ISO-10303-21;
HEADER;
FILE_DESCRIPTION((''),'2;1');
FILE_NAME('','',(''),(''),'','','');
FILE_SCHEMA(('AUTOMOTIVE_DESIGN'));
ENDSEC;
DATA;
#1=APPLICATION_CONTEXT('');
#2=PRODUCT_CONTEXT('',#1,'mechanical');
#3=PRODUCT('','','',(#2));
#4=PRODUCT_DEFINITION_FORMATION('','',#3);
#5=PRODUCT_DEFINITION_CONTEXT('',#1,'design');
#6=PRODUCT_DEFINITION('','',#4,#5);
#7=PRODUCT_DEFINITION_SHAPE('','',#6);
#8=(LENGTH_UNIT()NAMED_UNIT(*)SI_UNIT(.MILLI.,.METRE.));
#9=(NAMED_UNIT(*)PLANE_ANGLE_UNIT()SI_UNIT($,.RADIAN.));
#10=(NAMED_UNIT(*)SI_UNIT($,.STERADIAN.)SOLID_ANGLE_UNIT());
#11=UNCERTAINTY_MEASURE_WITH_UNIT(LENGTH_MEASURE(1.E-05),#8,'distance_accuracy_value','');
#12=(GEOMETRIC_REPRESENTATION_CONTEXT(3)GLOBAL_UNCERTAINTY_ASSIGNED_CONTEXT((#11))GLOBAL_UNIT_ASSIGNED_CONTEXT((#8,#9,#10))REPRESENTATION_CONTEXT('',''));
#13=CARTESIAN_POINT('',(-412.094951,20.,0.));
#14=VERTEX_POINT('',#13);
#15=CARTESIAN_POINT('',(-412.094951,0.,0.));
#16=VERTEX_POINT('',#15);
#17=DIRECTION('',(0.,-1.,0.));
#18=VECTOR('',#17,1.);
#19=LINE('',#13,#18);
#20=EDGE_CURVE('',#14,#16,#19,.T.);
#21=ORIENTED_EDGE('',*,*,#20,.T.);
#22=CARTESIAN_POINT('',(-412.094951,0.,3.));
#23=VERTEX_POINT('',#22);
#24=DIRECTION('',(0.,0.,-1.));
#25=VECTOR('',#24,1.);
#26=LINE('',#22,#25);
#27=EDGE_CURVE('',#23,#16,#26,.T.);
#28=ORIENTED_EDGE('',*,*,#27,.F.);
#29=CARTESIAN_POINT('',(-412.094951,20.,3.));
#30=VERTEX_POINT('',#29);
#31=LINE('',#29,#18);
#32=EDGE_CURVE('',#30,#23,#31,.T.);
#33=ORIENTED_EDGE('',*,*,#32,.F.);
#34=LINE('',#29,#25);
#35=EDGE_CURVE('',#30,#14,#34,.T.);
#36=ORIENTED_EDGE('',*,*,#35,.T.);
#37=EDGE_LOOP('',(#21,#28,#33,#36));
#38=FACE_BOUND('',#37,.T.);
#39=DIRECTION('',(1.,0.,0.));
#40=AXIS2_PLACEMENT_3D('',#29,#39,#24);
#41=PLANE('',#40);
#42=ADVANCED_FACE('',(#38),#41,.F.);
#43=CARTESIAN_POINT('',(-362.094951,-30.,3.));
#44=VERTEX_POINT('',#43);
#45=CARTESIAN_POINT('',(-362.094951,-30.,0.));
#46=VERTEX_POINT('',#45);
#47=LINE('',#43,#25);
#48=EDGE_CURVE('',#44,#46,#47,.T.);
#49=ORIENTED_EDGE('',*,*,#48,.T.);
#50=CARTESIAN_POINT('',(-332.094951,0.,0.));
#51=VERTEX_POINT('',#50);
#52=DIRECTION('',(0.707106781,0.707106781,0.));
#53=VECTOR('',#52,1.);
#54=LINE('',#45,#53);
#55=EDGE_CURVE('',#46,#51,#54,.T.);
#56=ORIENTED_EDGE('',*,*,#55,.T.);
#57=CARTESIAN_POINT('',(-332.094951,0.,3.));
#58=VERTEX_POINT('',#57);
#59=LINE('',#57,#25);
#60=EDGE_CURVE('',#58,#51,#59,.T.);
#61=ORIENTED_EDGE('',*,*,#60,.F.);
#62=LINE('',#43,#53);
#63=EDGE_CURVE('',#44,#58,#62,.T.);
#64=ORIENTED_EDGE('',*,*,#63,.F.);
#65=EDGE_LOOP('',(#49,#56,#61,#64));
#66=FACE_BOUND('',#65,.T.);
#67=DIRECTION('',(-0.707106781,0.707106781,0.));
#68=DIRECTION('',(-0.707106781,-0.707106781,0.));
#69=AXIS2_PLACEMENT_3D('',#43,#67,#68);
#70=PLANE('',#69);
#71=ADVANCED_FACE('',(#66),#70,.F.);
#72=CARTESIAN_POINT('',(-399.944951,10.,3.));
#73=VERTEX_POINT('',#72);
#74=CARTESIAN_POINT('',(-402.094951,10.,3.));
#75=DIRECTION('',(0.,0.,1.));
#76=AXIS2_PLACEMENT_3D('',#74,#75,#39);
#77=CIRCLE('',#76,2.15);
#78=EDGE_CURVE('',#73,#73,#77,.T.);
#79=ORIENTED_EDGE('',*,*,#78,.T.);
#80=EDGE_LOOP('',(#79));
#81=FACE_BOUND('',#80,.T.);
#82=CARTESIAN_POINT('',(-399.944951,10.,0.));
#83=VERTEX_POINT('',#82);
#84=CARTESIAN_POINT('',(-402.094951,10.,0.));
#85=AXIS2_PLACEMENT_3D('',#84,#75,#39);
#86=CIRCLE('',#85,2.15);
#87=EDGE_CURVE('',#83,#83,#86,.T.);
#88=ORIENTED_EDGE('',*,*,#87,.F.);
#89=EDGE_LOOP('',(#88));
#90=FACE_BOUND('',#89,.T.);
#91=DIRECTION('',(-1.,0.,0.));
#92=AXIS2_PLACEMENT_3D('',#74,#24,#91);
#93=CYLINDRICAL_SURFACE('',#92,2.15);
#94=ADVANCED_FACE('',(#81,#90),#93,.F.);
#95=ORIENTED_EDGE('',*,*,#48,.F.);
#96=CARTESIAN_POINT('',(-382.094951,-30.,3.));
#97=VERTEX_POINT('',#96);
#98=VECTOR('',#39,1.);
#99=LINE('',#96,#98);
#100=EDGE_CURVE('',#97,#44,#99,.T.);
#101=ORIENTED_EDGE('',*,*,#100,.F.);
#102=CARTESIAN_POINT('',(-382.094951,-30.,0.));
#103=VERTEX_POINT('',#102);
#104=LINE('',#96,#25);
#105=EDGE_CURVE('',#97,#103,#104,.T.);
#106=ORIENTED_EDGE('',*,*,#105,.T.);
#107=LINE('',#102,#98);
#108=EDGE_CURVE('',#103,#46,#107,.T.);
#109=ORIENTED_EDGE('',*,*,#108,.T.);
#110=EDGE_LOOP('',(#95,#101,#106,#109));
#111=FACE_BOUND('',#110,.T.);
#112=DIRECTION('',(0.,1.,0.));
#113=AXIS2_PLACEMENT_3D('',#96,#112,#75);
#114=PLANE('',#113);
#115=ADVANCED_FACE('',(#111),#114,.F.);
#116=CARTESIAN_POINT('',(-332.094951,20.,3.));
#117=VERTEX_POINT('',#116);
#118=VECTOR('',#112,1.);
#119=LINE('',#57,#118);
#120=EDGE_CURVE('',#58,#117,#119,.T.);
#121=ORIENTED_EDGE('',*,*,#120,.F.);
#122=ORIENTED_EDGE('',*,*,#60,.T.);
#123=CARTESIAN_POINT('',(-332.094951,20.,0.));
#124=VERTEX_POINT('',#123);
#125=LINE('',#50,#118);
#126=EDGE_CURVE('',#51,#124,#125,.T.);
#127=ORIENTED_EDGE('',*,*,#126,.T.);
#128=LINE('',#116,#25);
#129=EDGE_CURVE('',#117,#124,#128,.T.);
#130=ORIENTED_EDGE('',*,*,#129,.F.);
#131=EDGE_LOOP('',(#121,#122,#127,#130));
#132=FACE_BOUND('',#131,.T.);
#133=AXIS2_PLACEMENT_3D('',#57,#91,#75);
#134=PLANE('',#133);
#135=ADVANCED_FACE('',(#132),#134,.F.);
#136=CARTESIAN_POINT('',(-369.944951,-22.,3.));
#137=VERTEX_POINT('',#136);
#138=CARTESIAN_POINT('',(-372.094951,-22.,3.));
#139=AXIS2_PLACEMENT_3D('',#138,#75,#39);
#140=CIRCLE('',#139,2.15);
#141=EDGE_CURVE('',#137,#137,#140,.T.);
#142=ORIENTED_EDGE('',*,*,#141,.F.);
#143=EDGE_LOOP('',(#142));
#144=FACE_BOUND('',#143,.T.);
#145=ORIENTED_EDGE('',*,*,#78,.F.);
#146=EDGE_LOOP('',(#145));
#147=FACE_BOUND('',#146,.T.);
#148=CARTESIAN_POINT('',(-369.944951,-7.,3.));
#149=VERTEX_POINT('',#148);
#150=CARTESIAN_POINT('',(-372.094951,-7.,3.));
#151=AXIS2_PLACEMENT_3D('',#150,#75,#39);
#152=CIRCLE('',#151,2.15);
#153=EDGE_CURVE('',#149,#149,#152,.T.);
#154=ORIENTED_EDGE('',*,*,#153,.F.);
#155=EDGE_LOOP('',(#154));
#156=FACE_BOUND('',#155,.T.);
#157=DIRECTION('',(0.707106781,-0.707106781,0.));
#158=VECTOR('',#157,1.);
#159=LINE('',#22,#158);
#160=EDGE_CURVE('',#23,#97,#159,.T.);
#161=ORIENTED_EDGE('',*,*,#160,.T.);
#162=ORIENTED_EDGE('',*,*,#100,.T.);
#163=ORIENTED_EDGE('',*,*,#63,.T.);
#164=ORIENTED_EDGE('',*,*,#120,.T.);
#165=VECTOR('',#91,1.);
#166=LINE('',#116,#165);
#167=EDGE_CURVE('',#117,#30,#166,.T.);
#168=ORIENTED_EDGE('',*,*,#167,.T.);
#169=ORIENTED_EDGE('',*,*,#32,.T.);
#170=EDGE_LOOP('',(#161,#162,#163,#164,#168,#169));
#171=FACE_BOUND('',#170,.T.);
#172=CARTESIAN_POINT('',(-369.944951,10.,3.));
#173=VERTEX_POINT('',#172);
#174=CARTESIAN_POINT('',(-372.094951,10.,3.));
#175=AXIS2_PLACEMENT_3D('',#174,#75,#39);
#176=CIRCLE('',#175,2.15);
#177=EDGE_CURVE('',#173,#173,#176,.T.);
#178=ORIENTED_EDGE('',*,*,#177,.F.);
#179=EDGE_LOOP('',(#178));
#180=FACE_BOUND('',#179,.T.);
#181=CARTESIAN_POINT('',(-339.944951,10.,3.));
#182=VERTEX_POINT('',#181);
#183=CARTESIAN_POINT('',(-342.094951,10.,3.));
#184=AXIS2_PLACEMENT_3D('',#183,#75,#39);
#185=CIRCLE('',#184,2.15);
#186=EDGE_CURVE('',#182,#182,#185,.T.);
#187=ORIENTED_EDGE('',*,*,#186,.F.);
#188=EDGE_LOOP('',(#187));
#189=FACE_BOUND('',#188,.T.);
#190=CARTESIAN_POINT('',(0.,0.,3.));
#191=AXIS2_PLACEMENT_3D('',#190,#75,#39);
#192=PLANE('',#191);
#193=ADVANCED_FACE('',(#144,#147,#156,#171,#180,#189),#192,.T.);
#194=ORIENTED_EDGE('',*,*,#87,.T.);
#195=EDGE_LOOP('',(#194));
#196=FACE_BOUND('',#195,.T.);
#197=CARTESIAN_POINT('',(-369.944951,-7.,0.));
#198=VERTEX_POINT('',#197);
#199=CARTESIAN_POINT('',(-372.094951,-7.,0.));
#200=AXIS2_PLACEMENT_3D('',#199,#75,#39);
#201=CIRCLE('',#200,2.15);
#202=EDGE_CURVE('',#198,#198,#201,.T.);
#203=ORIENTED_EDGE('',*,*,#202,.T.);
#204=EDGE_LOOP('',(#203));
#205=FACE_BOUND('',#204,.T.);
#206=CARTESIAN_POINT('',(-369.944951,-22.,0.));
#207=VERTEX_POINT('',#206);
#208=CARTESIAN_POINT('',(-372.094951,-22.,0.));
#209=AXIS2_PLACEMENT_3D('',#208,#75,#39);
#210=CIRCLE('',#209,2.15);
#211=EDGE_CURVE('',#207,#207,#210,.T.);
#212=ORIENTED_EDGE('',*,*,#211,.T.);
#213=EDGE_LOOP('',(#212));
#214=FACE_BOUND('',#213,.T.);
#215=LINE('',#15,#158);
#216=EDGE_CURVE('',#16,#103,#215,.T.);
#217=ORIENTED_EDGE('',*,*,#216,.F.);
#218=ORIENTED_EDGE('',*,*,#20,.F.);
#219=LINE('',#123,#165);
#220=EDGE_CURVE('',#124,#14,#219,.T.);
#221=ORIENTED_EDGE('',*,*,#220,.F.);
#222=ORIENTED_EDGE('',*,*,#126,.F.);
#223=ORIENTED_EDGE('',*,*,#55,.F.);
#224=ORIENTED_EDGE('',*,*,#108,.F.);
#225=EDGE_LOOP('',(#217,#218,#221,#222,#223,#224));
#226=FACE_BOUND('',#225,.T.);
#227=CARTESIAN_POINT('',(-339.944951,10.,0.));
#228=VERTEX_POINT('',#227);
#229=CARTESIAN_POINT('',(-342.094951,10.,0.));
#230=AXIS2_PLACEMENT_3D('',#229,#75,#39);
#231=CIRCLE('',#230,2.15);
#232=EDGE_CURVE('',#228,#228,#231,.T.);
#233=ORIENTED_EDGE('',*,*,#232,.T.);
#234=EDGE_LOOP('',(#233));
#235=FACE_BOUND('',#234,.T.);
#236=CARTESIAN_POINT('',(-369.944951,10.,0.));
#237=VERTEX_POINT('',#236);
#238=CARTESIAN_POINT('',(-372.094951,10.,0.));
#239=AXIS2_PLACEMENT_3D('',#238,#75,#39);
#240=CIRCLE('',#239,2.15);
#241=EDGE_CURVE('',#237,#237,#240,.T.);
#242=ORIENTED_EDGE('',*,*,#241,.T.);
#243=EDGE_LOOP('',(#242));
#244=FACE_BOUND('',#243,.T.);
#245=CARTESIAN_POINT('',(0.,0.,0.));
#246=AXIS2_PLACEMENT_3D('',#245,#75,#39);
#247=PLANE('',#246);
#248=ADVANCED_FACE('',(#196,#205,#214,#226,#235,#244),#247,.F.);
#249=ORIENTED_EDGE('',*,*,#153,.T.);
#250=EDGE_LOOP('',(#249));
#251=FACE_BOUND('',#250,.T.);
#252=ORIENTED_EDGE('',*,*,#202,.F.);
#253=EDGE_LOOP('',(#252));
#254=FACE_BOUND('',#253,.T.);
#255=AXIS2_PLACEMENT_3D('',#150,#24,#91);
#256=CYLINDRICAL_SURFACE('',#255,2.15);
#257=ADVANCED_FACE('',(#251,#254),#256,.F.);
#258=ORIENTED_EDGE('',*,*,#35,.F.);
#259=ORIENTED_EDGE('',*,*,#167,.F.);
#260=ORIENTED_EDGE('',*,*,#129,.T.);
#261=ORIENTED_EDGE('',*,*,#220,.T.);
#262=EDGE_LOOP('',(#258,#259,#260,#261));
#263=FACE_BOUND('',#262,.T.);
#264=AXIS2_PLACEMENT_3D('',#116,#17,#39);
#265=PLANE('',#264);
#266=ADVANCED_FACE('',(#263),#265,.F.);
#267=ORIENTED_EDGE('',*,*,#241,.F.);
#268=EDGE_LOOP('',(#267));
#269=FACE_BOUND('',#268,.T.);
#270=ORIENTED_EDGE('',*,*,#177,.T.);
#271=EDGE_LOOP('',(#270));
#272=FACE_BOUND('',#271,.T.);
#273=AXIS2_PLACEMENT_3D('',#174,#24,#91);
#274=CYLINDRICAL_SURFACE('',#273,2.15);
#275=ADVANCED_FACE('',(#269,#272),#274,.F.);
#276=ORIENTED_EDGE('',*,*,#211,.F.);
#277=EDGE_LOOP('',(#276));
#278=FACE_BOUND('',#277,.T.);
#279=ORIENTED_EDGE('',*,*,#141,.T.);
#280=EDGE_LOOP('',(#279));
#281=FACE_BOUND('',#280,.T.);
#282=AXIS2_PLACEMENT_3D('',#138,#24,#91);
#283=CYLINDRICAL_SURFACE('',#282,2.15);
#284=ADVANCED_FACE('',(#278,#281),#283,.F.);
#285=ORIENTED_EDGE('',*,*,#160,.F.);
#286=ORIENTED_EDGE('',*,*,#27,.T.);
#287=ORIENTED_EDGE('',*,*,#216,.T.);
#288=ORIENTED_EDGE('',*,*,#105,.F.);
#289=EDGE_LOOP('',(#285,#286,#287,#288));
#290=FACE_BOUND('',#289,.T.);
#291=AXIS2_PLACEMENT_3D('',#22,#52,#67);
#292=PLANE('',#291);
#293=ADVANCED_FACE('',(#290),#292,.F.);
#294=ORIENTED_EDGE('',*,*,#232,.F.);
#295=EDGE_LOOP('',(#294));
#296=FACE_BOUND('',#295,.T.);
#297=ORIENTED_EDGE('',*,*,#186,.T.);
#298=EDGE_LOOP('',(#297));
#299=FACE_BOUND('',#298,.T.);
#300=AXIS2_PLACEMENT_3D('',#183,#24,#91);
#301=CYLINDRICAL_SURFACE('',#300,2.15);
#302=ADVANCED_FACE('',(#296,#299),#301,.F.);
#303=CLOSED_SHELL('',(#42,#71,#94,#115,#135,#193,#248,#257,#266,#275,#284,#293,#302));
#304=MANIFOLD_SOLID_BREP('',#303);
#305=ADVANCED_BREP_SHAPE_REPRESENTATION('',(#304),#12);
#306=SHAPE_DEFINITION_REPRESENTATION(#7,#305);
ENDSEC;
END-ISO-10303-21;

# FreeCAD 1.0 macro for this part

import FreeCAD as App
import Part
import Sketcher

V = App.Vector


def add_polygon(sketch, points):
    """Adds a closed chain of lines whose ends are joined by coincident constraints."""
    first, n = sketch.GeometryCount, len(points)
    for a, b in zip(points, points[1:] + points[:1]):
        sketch.addGeometry(Part.LineSegment(App.Vector(*a, 0), App.Vector(*b, 0)), False)
    for i in range(n):
        sketch.addConstraint(Sketcher.Constraint("Coincident", first + i, 2, first + (i + 1) % n, 1))

doc = App.newDocument("Part")
body = doc.addObject("PartDesign::Body", "Body")

sketch1 = body.newObject("Sketcher::SketchObject", "Sketch")
sketch1.AttachmentSupport = (doc.getObject("XY_Plane"), [""])
sketch1.MapMode = "FlatFace"
add_polygon(sketch1, [(-412.1, 20), (-412.1, 0), (-382.1, -30), (-362.1, -30), (-332.1, 0), (-332.1, 20)])
sketch1.addGeometry(Part.Circle(V(-372.1, -22, 0), V(0, 0, 1), 2.1), False)
sketch1.addGeometry(Part.Circle(V(-372.1, -7, 0), V(0, 0, 1), 2.1), False)
sketch1.addGeometry(Part.Circle(V(-402.1, 10, 0), V(0, 0, 1), 2.1), False)
sketch1.addGeometry(Part.Circle(V(-372.1, 10, 0), V(0, 0, 1), 2.1), False)
sketch1.addGeometry(Part.Circle(V(-342.1, 10, 0), V(0, 0, 1), 2.1), False)
sketch1.addConstraint(Sketcher.Constraint("Vertical", 0))
sketch1.addConstraint(Sketcher.Constraint("Horizontal", 2))
sketch1.addConstraint(Sketcher.Constraint("Vertical", 4))
sketch1.addConstraint(Sketcher.Constraint("Horizontal", 5))
sketch1.addConstraint(Sketcher.Constraint("Equal", 6, 7))
sketch1.addConstraint(Sketcher.Constraint("Equal", 7, 8))
sketch1.addConstraint(Sketcher.Constraint("Equal", 8, 9))
sketch1.addConstraint(Sketcher.Constraint("Equal", 9, 10))
sketch1.addConstraint(Sketcher.Constraint("PointOnObject", 0, 2, -1))
sketch1.addConstraint(Sketcher.Constraint("PointOnObject", 3, 2, -1))
sketch1.addConstraint(Sketcher.Constraint("Perpendicular", 1, 3))
sketch1.addConstraint(Sketcher.Constraint("Horizontal", 8, 3, 9, 3))
sketch1.addConstraint(Sketcher.Constraint("Horizontal", 9, 3, 10, 3))
sketch1.addConstraint(Sketcher.Constraint("Vertical", 6, 3, 7, 3))
sketch1.addConstraint(Sketcher.Constraint("Vertical", 7, 3, 9, 3))
sketch1.addConstraint(Sketcher.Constraint("Equal", 2, 0))
sketch1.addConstraint(Sketcher.Constraint("Equal", 1, 3))
sketch1.addConstraint(Sketcher.Constraint("Diameter", 6, 4.3))
sketch1.addConstraint(Sketcher.Constraint("DistanceX", 2, 1, 2, 2, 20.0))
sketch1.addConstraint(Sketcher.Constraint("DistanceX", 5, 2, 5, 1, 80.0))
sketch1.addConstraint(Sketcher.Constraint("DistanceY", 6, 3, -1, 1, 22.0))
sketch1.addConstraint(Sketcher.Constraint("DistanceY", 7, 3, -1, 1, 7.0))
sketch1.addConstraint(Sketcher.Constraint("DistanceY", -1, 1, 8, 3, 10.0))
sketch1.addConstraint(Sketcher.Constraint("DistanceX", 8, 3, 7, 3, 30.0))
sketch1.addConstraint(Sketcher.Constraint("DistanceX", 9, 3, 10, 3, 30.0))
sketch1.addConstraint(Sketcher.Constraint("DistanceX", 0, 2, 8, 3, 10.0))
sketch1.addConstraint(Sketcher.Constraint("DistanceX", 6, 3, -1, 1, 372.094951))
pad1 = body.newObject("PartDesign::Pad", "Pad")
pad1.Profile = sketch1
pad1.Length = 3

doc.recompute()
